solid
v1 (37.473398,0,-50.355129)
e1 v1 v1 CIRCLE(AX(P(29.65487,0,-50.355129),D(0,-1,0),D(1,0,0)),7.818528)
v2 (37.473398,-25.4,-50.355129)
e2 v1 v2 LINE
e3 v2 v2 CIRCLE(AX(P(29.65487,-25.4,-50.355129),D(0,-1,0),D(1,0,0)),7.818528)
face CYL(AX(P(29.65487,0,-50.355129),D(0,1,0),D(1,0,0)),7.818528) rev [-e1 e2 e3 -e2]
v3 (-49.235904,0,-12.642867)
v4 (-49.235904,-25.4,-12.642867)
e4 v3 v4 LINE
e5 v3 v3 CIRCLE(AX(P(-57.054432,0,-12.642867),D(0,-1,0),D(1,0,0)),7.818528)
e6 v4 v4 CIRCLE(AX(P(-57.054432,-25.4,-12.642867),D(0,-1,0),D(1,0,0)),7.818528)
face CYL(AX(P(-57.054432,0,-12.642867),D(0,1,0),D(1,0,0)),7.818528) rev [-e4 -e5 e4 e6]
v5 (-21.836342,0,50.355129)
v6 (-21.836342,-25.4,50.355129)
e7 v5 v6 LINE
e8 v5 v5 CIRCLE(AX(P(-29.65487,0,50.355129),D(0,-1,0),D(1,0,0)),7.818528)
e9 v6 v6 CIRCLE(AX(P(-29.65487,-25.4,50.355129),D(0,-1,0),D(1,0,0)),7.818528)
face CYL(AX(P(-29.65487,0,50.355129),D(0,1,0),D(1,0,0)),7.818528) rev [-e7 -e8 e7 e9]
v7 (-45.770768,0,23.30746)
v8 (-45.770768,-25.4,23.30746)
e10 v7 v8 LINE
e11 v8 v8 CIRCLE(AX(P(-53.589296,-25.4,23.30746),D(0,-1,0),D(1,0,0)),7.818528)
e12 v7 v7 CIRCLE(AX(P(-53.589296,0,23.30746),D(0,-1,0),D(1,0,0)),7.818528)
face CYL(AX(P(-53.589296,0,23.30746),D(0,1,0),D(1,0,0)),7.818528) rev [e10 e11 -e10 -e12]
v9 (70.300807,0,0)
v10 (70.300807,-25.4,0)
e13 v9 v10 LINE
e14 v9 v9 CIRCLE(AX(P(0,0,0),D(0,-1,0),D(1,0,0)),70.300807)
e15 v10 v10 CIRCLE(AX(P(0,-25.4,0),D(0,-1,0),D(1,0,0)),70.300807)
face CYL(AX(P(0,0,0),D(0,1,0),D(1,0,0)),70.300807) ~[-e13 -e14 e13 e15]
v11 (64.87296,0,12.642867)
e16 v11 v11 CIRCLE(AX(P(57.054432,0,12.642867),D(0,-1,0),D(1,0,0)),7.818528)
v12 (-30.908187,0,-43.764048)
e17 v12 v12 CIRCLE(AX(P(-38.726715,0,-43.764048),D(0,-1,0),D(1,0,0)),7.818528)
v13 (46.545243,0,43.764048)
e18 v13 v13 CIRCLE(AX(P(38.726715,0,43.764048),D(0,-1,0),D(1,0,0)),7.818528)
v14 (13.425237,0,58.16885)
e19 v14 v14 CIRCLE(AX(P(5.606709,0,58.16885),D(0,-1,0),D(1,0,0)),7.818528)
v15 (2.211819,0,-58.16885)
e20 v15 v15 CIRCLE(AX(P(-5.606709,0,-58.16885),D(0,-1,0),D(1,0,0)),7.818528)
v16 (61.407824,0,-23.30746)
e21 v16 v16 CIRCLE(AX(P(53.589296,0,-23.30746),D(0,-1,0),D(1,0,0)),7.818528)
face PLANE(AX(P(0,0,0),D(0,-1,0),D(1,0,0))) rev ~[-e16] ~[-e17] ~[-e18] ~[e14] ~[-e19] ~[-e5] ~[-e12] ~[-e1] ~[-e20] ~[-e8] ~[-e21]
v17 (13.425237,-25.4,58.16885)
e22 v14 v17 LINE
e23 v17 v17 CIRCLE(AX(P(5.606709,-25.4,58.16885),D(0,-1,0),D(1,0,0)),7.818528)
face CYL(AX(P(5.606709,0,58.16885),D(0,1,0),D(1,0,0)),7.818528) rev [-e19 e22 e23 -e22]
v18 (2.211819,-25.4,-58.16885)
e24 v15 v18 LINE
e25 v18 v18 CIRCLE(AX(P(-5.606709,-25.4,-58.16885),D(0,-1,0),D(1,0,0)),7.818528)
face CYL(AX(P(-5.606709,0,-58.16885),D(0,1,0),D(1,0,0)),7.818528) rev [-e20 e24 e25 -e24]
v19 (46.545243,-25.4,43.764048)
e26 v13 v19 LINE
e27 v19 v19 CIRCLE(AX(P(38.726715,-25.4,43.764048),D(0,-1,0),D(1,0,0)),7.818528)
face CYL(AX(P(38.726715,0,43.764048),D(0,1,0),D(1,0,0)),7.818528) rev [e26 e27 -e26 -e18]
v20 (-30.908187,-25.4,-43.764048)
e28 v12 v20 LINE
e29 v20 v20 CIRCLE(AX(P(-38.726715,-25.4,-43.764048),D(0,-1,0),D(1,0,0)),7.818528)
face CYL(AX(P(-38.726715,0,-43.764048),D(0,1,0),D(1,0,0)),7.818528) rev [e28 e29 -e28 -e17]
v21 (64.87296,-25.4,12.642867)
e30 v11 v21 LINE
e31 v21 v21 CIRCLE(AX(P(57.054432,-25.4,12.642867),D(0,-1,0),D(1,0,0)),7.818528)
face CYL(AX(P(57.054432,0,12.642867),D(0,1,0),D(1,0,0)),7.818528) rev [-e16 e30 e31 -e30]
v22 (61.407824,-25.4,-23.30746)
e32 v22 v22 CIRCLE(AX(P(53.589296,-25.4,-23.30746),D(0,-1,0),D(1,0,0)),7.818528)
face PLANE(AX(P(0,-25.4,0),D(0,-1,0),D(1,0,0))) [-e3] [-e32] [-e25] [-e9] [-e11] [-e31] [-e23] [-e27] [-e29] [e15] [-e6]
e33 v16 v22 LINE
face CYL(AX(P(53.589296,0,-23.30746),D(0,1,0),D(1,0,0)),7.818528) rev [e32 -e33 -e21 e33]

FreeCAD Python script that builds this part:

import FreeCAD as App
import Part
import Sketcher

V = App.Vector
Q = App.Units.Quantity

doc = App.newDocument("Part")
params = doc.addObject("Spreadsheet::Sheet", "Params")
for row, (alias, value) in enumerate([
    ("pad1_length", "1 in"),
], start=1):
    params.set(f"A{row}", alias)
    params.set(f"B{row}", "=" + value)
    params.setAlias(f"B{row}", alias)

body = doc.addObject("PartDesign::Body", "Body")

# Sketch on XZ plane
sketch1 = doc.addObject("Sketcher::SketchObject", "Sketch")
body.addObject(sketch1)
sketch1.AttachmentSupport = (doc.XZ_Plane, [""])
sketch1.MapMode = "FlatFace"
sketch1.addGeometry(Part.Circle(V(0, 0, 0), V(0, 0, 1), 70), False)
sketch1.addGeometry(Part.Circle(V(-39, -44, 0), V(0, 0, 1), 8), False)
sketch1.addGeometry(Part.Circle(V(-6, -58, 0), V(0, 0, 1), 8), False)
sketch1.addGeometry(Part.Circle(V(-57, -13, 0), V(0, 0, 1), 8), False)
sketch1.addGeometry(Part.Circle(V(30, -50, 0), V(0, 0, 1), 8), False)
sketch1.addGeometry(Part.Circle(V(54, -23, 0), V(0, 0, 1), 8), False)
sketch1.addGeometry(Part.Circle(V(-54, 23, 0), V(0, 0, 1), 8), False)
sketch1.addGeometry(Part.Circle(V(-30, 50, 0), V(0, 0, 1), 8), False)
sketch1.addGeometry(Part.Circle(V(57, 13, 0), V(0, 0, 1), 8), False)
sketch1.addGeometry(Part.Circle(V(6, 58, 0), V(0, 0, 1), 8), False)
sketch1.addGeometry(Part.Circle(V(39, 44, 0), V(0, 0, 1), 8), False)
sketch1.addConstraint(Sketcher.Constraint("Coincident", 0, 3, -1, 1))
sketch1.addConstraint(Sketcher.Constraint("Equal", 1, 2))
sketch1.addConstraint(Sketcher.Constraint("Equal", 2, 3))
sketch1.addConstraint(Sketcher.Constraint("Equal", 3, 4))
sketch1.addConstraint(Sketcher.Constraint("Equal", 4, 5))
sketch1.addConstraint(Sketcher.Constraint("Equal", 5, 6))
sketch1.addConstraint(Sketcher.Constraint("Equal", 6, 7))
sketch1.addConstraint(Sketcher.Constraint("Equal", 7, 8))
sketch1.addConstraint(Sketcher.Constraint("Equal", 8, 9))
sketch1.addConstraint(Sketcher.Constraint("Equal", 9, 10))
sketch1.addConstraint(Sketcher.Constraint("Symmetric", 5, 3, 6, 3, -1, 1))
sketch1.addConstraint(Sketcher.Constraint("Symmetric", 4, 3, 7, 3, -1, 1))
sketch1.addConstraint(Sketcher.Constraint("Symmetric", 3, 3, 8, 3, -1, 1))
sketch1.addConstraint(Sketcher.Constraint("Symmetric", 2, 3, 9, 3, -1, 1))
sketch1.addConstraint(Sketcher.Constraint("Symmetric", 1, 3, 10, 3, -1, 1))
sketch1.addConstraint(Sketcher.Constraint("Diameter", 0, Q("140.601614 mm")))
sketch1.addConstraint(Sketcher.Constraint("Diameter", 1, Q("15.637056 mm")))
sketch1.addConstraint(Sketcher.Constraint("DistanceY", 2, 3, 1, 3, Q("14.404802 mm")))
sketch1.addConstraint(Sketcher.Constraint("DistanceX", 3, 3, 4, 3, Q("86.709302 mm")))
sketch1.addConstraint(Sketcher.Constraint("DistanceY", 1, 3, -1, 1, Q("43.764048 mm")))
sketch1.addConstraint(Sketcher.Constraint("DistanceX", 2, 3, -1, 1, Q("5.606709 mm")))
sketch1.addConstraint(Sketcher.Constraint("DistanceX", 3, 3, -1, 1, Q("57.054432 mm")))
sketch1.addConstraint(Sketcher.Constraint("DistanceY", 4, 3, -1, 1, Q("50.355129 mm")))
sketch1.addConstraint(Sketcher.Constraint("DistanceY", 5, 3, -1, 1, Q("23.30746 mm")))
sketch1.addConstraint(Sketcher.Constraint("DistanceY", 1, 3, 3, 3, Q("31.121181 mm")))
sketch1.addConstraint(Sketcher.Constraint("DistanceX", 1, 3, 5, 3, Q("92.316011 mm")))
sketch1.addConstraint(Sketcher.Constraint("DistanceX", 6, 3, 1, 3, Q("14.862581 mm")))
pad1 = doc.addObject("PartDesign::Pad", "Pad")
body.addObject(pad1)
pad1.Profile = sketch1
pad1.setExpression("Length", "Params.pad1_length")

doc.recompute()
